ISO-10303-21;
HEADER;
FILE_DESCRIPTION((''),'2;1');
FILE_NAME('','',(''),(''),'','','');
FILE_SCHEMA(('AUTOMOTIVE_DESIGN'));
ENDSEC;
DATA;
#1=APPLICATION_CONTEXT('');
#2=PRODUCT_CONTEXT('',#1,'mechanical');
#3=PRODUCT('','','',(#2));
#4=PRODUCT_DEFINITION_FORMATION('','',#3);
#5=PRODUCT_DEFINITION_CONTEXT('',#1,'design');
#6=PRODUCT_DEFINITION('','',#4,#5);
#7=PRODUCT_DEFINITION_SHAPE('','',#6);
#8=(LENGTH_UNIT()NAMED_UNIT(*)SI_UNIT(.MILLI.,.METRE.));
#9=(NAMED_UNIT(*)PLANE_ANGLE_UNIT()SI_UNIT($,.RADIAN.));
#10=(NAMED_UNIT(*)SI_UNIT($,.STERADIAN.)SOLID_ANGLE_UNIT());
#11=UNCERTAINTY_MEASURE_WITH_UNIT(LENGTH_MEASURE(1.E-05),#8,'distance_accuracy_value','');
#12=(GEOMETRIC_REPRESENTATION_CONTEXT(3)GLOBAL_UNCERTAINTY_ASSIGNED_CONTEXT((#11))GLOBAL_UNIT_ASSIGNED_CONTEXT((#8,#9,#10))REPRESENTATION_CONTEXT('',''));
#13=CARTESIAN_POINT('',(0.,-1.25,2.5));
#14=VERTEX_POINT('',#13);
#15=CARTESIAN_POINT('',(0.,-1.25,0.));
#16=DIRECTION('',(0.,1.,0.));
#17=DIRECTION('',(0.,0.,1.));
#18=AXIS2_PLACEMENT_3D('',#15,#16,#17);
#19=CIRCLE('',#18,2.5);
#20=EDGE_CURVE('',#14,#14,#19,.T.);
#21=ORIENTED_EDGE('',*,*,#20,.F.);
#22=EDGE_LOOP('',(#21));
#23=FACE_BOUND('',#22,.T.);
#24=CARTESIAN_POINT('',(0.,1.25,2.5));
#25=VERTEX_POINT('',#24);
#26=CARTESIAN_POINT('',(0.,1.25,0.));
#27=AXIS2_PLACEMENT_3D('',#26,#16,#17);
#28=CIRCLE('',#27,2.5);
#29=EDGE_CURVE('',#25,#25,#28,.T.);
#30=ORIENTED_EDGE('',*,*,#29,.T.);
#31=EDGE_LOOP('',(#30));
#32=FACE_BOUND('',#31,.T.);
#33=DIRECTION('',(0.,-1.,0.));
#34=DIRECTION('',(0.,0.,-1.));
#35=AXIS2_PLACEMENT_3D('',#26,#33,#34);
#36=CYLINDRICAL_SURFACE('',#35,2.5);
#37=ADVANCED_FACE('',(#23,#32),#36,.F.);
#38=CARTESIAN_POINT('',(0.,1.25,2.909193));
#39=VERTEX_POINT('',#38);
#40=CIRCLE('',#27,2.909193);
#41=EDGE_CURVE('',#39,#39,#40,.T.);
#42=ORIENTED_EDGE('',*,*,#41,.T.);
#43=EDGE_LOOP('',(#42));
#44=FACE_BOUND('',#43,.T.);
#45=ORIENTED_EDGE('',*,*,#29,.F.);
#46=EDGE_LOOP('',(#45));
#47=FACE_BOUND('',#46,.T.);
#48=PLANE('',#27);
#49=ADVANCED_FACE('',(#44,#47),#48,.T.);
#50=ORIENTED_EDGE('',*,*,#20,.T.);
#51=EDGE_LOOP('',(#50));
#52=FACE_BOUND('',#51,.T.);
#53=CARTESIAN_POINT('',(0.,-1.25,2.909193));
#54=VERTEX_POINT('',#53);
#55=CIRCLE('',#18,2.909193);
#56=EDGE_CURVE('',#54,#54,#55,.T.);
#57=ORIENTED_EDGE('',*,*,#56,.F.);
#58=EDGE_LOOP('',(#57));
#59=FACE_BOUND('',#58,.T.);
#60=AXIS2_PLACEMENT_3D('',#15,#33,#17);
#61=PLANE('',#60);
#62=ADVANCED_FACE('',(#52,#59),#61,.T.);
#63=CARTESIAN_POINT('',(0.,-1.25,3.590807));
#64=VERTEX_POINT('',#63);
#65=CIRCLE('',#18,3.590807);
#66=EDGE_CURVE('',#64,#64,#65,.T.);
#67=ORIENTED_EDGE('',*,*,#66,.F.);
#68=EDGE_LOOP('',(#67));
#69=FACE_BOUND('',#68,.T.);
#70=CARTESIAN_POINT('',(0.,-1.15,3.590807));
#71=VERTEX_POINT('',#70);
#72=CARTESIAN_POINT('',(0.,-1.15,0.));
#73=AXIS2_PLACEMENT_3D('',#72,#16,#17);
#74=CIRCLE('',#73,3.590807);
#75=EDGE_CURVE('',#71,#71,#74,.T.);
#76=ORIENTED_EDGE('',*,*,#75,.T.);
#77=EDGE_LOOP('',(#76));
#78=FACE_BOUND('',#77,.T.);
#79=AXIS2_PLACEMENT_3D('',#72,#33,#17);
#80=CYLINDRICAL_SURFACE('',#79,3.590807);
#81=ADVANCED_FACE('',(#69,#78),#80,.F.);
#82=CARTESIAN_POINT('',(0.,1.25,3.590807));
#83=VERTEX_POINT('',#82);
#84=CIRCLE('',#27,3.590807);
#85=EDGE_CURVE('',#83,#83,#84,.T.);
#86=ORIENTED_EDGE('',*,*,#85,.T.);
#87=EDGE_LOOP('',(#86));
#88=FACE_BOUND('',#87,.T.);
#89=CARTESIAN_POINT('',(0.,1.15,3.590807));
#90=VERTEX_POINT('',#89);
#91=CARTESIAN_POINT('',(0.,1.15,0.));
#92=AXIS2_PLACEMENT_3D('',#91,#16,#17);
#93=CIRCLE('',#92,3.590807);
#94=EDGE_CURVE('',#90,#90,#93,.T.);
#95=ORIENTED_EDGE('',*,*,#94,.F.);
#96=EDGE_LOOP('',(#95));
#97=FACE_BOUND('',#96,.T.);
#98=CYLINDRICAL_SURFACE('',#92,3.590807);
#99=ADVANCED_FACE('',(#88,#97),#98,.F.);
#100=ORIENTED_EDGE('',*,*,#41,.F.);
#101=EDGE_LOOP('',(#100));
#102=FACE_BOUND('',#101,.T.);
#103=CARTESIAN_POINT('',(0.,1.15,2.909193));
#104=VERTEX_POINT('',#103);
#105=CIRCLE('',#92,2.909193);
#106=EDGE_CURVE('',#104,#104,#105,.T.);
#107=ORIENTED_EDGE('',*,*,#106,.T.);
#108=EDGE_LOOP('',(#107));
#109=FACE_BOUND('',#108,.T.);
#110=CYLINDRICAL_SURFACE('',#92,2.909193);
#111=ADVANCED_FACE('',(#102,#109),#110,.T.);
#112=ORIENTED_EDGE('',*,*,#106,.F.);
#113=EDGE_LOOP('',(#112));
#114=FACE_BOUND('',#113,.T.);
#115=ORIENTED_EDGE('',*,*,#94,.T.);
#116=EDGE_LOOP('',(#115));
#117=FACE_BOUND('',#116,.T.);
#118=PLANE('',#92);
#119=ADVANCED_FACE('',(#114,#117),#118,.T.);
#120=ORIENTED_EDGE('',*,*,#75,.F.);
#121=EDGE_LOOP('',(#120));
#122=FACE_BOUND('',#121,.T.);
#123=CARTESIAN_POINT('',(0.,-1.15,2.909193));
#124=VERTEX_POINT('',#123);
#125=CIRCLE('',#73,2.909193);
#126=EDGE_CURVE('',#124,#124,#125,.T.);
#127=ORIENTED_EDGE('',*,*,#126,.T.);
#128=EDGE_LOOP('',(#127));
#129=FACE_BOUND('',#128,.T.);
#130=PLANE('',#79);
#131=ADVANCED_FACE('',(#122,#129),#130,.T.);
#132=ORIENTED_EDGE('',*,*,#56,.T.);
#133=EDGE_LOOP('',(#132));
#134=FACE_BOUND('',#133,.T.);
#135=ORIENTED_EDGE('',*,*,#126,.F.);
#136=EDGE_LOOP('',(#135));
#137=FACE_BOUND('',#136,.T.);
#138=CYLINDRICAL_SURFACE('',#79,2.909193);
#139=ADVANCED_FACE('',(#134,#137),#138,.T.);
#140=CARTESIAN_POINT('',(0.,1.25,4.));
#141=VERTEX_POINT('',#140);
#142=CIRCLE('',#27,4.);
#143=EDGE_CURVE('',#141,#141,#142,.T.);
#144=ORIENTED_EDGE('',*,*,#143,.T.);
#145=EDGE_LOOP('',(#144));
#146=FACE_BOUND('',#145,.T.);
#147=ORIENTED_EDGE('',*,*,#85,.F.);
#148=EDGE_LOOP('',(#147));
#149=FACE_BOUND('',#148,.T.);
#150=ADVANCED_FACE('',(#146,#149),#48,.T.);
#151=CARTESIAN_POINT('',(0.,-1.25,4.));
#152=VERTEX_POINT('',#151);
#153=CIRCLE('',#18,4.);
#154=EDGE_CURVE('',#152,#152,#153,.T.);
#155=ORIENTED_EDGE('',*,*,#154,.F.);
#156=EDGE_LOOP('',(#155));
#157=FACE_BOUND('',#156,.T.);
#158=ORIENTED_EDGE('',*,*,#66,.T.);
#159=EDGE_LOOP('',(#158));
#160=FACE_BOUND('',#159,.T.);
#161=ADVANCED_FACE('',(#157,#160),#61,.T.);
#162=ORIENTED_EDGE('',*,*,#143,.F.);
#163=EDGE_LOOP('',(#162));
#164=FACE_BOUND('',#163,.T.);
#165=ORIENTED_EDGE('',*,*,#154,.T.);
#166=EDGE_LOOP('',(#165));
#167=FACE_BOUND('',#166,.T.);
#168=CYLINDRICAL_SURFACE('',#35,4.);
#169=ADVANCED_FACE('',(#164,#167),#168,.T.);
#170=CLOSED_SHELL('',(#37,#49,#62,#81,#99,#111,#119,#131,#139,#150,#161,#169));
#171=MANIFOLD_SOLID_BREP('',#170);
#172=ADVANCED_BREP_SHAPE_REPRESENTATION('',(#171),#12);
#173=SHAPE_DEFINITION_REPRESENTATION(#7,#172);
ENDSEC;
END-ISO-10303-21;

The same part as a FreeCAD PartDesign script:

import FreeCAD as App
import Part
import Sketcher

V = App.Vector
Q = App.Units.Quantity

doc = App.newDocument("Part")
params = doc.addObject("Spreadsheet::Sheet", "Params")
for row, (alias, value) in enumerate([
    ("sketch1_diameter", "8 mm"),
    ("sketch1_diameter2", "5 mm"),
    ("pad1_length", "1.25 mm"),
    ("pocket1_length", "0.1 mm"),
], start=1):
    params.set(f"A{row}", alias)
    params.set(f"B{row}", "=" + value)
    params.setAlias(f"B{row}", alias)

body = doc.addObject("PartDesign::Body", "Body")

sketch1 = doc.addObject("Sketcher::SketchObject", "Sketch")
body.addObject(sketch1)
sketch1.AttachmentSupport = (doc.XZ_Plane, [""])
sketch1.MapMode = "FlatFace"
sketch1.addGeometry([
    Part.Circle(V(0, 0, 0), V(0, 0, 1), 4),
    Part.Circle(V(0, 0, 0), V(0, 0, 1), 2.5),
], False)
sketch1.addConstraint([
    Sketcher.Constraint("Coincident", 0, 3, -1, 1),
    Sketcher.Constraint("Coincident", 1, 3, -1, 1),
    Sketcher.Constraint("Diameter", 0, Q("8 mm")),
    Sketcher.Constraint("Diameter", 1, Q("5 mm")),
])
sketch1.setExpression("Constraints[2]", "Params.sketch1_diameter")
sketch1.setExpression("Constraints[3]", "Params.sketch1_diameter2")
pad1 = doc.addObject("PartDesign::Pad", "Pad")
body.addObject(pad1)
pad1.Profile = sketch1
pad1.setExpression("Length", "Params.pad1_length")
pad1.Reversed = True

sketch2 = doc.addObject("Sketcher::SketchObject", "Sketch001")
body.addObject(sketch2)
sketch2.AttachmentSupport = (doc.XZ_Plane, [""])
sketch2.MapMode = "FlatFace"
sketch2.AttachmentOffset = App.Placement(V(0, 0, -1.25), App.Rotation())
sketch2.addGeometry([
    Part.Circle(V(0, 0, 0), V(0, 0, 1), 3.6),
    Part.Circle(V(0, 0, 0), V(0, 0, 1), 2.9),
], False)
sketch2.addConstraint([
    Sketcher.Constraint("Coincident", 0, 3, -1, 1),
    Sketcher.Constraint("Coincident", 1, 3, -1, 1),
    Sketcher.Constraint("Diameter", 0, Q("7.181614 mm")),
    Sketcher.Constraint("Diameter", 1, Q("5.818386 mm")),
])
pocket1 = doc.addObject("PartDesign::Pocket", "Pocket")
body.addObject(pocket1)
pocket1.Profile = sketch2
pocket1.setExpression("Length", "Params.pocket1_length")
pocket1.Reversed = True
body2 = doc.addObject("PartDesign::Body", "Body001")
doc.recompute()

body2.BaseFeature = body
doc.recompute()

mirroring = doc.addObject("Part::Mirroring", "Mirroring")
mirroring.Source = body
mirroring.Base = V(0, 0, 0)
mirroring.Normal = V(0, 1, 0)
body3 = doc.addObject("PartDesign::Body", "Body002")
body3.BaseFeature = mirroring
boolean = doc.addObject("PartDesign::Boolean", "Boolean")
body2.addObject(boolean)
boolean.Type = "Fuse"
boolean.addObjects([body3])
doc.recompute()
mirroring.Visibility = False

doc.recompute()
